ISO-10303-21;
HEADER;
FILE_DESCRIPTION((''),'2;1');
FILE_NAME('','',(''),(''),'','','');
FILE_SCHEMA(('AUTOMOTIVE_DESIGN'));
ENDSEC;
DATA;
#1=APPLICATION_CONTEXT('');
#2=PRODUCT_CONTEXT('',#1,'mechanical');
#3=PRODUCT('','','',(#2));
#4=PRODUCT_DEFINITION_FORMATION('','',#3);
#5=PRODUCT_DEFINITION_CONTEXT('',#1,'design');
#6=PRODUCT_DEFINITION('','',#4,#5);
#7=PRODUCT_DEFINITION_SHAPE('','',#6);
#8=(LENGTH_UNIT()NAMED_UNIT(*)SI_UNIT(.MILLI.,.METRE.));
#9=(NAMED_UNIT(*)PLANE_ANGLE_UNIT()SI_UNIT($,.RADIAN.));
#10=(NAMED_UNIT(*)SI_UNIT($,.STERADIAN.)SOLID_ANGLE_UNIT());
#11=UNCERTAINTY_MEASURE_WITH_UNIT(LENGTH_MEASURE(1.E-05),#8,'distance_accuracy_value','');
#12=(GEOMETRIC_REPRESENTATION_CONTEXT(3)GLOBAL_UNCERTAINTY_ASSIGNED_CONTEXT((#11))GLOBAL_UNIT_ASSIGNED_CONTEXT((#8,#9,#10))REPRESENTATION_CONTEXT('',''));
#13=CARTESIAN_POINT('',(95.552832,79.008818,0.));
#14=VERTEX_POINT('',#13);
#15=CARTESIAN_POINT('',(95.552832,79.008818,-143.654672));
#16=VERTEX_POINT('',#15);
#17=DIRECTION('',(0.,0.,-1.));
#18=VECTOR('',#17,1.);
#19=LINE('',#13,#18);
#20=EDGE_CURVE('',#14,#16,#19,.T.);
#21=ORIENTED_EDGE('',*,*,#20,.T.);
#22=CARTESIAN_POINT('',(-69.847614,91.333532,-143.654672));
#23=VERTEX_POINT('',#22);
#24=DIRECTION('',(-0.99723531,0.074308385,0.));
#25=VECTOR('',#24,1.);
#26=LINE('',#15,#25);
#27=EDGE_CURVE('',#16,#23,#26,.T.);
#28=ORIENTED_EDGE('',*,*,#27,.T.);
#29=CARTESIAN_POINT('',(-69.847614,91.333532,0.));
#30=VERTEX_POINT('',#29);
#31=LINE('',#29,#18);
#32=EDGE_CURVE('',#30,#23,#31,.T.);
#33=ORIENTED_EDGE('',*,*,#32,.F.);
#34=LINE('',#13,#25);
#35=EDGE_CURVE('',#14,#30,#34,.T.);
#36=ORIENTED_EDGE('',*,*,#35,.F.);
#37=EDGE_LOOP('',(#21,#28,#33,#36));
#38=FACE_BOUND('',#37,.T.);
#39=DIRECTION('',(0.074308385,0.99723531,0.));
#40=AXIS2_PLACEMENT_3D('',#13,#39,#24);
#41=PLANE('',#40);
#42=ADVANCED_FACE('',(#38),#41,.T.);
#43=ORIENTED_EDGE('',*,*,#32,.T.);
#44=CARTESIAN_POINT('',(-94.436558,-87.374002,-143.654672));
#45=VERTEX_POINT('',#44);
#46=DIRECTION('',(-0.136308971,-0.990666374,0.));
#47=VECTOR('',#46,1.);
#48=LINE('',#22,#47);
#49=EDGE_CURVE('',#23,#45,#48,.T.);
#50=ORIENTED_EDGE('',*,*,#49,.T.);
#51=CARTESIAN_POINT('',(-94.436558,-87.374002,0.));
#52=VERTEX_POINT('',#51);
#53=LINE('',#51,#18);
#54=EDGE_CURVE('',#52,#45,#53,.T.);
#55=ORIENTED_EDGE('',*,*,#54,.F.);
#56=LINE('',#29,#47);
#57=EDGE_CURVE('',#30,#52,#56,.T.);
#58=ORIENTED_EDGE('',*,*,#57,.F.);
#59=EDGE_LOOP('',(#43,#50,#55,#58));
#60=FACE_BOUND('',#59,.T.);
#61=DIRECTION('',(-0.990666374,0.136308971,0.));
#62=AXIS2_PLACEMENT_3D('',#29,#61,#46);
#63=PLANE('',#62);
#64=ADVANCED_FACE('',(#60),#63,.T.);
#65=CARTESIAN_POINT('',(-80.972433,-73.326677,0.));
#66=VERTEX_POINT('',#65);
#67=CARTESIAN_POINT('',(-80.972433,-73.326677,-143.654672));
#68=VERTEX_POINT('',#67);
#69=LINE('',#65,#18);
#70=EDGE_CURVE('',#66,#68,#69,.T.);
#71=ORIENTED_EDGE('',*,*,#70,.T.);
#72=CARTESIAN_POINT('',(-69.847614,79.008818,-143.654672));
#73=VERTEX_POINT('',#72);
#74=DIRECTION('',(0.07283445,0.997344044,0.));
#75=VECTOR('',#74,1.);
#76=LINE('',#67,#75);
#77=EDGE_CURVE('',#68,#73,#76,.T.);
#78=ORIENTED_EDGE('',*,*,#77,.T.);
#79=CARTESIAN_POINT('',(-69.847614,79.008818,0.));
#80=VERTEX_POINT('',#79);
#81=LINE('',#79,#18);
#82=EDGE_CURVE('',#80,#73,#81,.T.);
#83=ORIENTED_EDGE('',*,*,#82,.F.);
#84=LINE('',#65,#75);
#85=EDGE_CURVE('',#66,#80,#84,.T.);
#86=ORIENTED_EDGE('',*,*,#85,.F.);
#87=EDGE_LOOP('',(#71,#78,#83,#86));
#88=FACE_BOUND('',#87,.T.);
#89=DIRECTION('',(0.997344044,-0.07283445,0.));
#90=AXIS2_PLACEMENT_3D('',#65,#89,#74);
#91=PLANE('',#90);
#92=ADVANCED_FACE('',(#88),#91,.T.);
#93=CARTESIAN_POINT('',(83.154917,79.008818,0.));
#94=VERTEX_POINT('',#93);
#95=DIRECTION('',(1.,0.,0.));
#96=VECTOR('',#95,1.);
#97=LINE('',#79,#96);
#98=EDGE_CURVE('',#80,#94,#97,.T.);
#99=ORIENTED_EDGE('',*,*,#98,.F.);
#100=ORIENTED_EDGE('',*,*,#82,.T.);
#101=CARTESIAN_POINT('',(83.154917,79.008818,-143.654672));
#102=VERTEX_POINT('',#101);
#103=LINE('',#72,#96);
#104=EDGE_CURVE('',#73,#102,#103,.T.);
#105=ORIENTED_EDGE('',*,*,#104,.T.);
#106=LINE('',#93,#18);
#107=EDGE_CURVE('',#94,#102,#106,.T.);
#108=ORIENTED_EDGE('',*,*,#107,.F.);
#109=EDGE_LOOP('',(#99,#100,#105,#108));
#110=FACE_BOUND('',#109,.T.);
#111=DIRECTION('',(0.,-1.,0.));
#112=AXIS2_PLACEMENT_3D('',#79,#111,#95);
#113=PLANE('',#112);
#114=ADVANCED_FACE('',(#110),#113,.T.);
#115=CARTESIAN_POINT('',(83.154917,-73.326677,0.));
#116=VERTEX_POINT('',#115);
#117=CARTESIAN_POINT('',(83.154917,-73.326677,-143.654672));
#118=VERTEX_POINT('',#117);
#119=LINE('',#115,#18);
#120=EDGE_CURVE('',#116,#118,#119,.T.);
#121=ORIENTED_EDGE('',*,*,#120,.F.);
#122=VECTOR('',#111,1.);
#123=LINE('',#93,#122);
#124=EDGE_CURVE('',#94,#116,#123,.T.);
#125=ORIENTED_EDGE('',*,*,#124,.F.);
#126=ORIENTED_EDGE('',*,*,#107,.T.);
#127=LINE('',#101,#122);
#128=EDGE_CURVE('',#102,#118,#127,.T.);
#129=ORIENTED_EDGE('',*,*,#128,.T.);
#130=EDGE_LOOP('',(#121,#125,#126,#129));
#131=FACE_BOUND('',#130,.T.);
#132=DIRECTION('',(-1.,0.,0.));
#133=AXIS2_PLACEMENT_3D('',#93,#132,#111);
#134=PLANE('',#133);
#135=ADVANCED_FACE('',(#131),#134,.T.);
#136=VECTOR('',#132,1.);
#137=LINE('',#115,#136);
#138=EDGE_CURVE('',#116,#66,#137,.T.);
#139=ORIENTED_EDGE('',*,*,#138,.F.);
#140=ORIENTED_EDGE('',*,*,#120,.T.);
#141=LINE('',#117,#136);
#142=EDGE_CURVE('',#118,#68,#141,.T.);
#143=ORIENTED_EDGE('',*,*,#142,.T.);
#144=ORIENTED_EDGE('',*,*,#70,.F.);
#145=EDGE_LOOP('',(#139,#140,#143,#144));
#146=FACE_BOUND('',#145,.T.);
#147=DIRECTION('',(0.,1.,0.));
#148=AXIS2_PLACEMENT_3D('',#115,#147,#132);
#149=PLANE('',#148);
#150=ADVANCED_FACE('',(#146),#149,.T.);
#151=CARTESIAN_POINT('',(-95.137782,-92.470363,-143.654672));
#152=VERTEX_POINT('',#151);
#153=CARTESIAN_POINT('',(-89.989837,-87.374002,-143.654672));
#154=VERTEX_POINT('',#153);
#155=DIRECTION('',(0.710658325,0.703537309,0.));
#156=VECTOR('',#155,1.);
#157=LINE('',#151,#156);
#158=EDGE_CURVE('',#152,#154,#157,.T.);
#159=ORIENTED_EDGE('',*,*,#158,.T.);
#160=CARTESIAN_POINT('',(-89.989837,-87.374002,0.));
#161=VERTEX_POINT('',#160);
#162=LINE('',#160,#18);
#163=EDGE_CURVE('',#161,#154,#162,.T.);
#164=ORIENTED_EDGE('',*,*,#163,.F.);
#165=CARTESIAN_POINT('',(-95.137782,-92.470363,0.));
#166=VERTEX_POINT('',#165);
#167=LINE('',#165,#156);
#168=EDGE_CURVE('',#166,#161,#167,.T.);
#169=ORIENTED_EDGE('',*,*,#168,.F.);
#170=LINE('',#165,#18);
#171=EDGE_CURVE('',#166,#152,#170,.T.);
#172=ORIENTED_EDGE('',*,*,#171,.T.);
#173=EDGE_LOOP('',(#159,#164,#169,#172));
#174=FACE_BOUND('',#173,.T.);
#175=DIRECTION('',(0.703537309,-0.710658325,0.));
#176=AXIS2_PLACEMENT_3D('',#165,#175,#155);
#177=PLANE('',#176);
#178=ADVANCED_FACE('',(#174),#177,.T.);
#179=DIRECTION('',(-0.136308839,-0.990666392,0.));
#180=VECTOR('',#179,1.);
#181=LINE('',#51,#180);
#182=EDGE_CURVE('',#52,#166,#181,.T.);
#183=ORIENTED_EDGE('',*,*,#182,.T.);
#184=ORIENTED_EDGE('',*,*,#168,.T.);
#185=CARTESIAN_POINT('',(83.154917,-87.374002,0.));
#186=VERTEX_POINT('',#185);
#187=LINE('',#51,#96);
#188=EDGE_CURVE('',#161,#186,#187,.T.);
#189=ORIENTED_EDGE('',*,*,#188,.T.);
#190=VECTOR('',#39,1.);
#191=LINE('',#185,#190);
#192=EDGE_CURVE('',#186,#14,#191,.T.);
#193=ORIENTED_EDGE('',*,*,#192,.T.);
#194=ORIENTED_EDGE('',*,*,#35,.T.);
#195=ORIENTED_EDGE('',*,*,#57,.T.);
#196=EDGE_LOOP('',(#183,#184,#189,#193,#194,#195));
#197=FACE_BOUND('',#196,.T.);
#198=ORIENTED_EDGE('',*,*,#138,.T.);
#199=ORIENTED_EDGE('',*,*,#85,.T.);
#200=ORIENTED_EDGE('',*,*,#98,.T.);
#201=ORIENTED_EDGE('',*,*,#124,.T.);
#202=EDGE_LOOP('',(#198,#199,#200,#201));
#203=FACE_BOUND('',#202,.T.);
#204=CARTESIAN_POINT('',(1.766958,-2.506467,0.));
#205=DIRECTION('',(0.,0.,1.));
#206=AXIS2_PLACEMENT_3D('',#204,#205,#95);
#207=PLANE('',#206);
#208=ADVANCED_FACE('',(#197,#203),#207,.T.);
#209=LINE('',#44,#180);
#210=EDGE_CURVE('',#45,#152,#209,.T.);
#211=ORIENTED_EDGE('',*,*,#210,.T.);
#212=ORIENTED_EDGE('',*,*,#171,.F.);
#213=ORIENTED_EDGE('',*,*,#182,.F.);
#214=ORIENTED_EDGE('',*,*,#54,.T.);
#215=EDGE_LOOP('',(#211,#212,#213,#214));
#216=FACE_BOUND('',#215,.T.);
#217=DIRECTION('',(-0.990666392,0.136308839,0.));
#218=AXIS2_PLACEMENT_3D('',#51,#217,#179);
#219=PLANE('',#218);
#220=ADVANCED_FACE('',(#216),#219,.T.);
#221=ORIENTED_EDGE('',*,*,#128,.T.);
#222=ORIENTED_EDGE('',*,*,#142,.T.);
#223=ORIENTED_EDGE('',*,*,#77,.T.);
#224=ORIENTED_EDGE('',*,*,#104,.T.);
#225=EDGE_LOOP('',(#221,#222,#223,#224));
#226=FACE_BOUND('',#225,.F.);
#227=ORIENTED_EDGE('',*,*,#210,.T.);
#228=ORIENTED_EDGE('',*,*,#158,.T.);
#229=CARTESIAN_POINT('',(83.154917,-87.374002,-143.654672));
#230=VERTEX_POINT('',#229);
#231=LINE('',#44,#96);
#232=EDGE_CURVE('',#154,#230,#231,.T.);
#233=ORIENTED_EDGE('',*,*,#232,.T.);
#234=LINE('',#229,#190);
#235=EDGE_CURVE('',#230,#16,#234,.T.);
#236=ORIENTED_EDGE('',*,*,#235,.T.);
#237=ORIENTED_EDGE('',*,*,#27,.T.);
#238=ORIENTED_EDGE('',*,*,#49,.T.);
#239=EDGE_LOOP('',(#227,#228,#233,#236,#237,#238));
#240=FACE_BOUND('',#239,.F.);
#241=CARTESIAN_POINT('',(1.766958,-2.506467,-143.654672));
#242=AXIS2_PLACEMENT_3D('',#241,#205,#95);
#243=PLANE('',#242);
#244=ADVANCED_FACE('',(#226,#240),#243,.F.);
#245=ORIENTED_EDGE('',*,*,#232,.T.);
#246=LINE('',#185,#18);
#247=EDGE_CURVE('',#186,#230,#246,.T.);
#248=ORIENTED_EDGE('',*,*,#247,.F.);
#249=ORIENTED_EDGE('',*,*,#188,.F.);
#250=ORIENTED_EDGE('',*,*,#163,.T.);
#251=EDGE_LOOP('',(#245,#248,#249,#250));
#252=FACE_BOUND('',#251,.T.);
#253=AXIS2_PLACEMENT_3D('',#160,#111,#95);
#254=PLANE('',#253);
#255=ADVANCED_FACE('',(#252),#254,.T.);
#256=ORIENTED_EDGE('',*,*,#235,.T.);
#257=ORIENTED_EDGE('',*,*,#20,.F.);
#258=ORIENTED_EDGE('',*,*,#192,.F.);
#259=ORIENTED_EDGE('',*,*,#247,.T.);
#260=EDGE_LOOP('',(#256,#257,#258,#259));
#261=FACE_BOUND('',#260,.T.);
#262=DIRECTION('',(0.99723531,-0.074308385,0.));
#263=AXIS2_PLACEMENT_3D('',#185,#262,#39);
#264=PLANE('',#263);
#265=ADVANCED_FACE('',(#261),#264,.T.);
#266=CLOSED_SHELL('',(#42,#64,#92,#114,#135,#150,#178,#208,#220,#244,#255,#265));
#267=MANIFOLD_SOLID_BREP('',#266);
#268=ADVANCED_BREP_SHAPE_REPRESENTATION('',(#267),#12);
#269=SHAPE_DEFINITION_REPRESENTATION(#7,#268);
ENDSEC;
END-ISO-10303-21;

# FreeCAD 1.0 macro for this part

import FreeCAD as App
import Part
import Sketcher

doc = App.newDocument("Part")
params = doc.addObject("Spreadsheet::Sheet", "Params")
for row, (alias, value) in enumerate([
    ("pad1_length", "143.654672 mm"),
], start=1):
    params.set(f"A{row}", alias)
    params.set(f"B{row}", "=" + value)
    params.setAlias(f"B{row}", alias)

body = doc.addObject("PartDesign::Body", "Body")

# Sketch on XY plane
sketch1 = body.newObject("Sketcher::SketchObject", "Sketch")
sketch1.AttachmentSupport = (doc.getObject("XY_Plane"), [""])
sketch1.MapMode = "FlatFace"
sketch1.addGeometry(Part.LineSegment(App.Vector(-70, 91, 0), App.Vector(-94, -87, 0)), False)
sketch1.addGeometry(Part.LineSegment(App.Vector(-94, -87, 0), App.Vector(-95, -92, 0)), False)
sketch1.addGeometry(Part.LineSegment(App.Vector(-95, -92, 0), App.Vector(-90, -87, 0)), False)
sketch1.addGeometry(Part.LineSegment(App.Vector(-90, -87, 0), App.Vector(83, -87, 0)), False)
sketch1.addGeometry(Part.LineSegment(App.Vector(83, -87, 0), App.Vector(96, 79, 0)), False)
sketch1.addGeometry(Part.LineSegment(App.Vector(96, 79, 0), App.Vector(-70, 91, 0)), False)
sketch1.addGeometry(Part.LineSegment(App.Vector(83, 79, 0), App.Vector(83, -73, 0)), False)
sketch1.addGeometry(Part.LineSegment(App.Vector(83, -73, 0), App.Vector(-81, -73, 0)), False)
sketch1.addGeometry(Part.LineSegment(App.Vector(-81, -73, 0), App.Vector(-70, 79, 0)), False)
sketch1.addGeometry(Part.LineSegment(App.Vector(-70, 79, 0), App.Vector(83, 79, 0)), False)
sketch1.addConstraint(Sketcher.Constraint("Coincident", 0, 2, 1, 1))
sketch1.addConstraint(Sketcher.Constraint("Coincident", 1, 2, 2, 1))
sketch1.addConstraint(Sketcher.Constraint("Coincident", 2, 2, 3, 1))
sketch1.addConstraint(Sketcher.Constraint("Coincident", 3, 2, 4, 1))
sketch1.addConstraint(Sketcher.Constraint("Coincident", 4, 2, 5, 1))
sketch1.addConstraint(Sketcher.Constraint("Coincident", 5, 2, 0, 1))
sketch1.addConstraint(Sketcher.Constraint("Coincident", 6, 2, 7, 1))
sketch1.addConstraint(Sketcher.Constraint("Coincident", 7, 2, 8, 1))
sketch1.addConstraint(Sketcher.Constraint("Coincident", 8, 2, 9, 1))
sketch1.addConstraint(Sketcher.Constraint("Coincident", 9, 2, 6, 1))
sketch1.addConstraint(Sketcher.Constraint("Horizontal", 3))
sketch1.addConstraint(Sketcher.Constraint("Vertical", 6))
sketch1.addConstraint(Sketcher.Constraint("Horizontal", 7))
sketch1.addConstraint(Sketcher.Constraint("Horizontal", 9))
sketch1.addConstraint(Sketcher.Constraint("Parallel", 0, 1))
sketch1.addConstraint(Sketcher.Constraint("Perpendicular", 4, 5))
sketch1.addConstraint(Sketcher.Constraint("Horizontal", 0, 2, 2, 2))
sketch1.addConstraint(Sketcher.Constraint("Horizontal", 4, 2, 8, 2))
sketch1.addConstraint(Sketcher.Constraint("Vertical", 3, 2, 6, 2))
sketch1.addConstraint(Sketcher.Constraint("Vertical", 5, 2, 8, 2))
sketch1.addConstraint(Sketcher.Constraint("DistanceX", 7, 2, 7, 1, 164.12735))
sketch1.addConstraint(Sketcher.Constraint("DistanceX", 9, 1, 9, 2, 153.002531))
sketch1.addConstraint(Sketcher.Constraint("DistanceX", 1, 2, 3, 2, 178.292699))
sketch1.addConstraint(Sketcher.Constraint("Distance", 0, 180.391238))
sketch1.addConstraint(Sketcher.Constraint("Distance", 2, 7.24391))
sketch1.addConstraint(Sketcher.Constraint("Distance", 8, 152.741169))
sketch1.addConstraint(Sketcher.Constraint("DistanceX", 3, 1, 3, 2, 173.144754))
sketch1.addConstraint(Sketcher.Constraint("DistanceX", 0, 2, -1, 1, 94.436558))
sketch1.addConstraint(Sketcher.Constraint("DistanceX", -1, 1, 4, 2, 95.552832))
sketch1.addConstraint(Sketcher.Constraint("DistanceY", -1, 1, 4, 2, 79.008818))
pad1 = body.newObject("PartDesign::Pad", "Pad")
pad1.Profile = sketch1
pad1.setExpression("Length", "Params.pad1_length")
pad1.Reversed = True

doc.recompute()
